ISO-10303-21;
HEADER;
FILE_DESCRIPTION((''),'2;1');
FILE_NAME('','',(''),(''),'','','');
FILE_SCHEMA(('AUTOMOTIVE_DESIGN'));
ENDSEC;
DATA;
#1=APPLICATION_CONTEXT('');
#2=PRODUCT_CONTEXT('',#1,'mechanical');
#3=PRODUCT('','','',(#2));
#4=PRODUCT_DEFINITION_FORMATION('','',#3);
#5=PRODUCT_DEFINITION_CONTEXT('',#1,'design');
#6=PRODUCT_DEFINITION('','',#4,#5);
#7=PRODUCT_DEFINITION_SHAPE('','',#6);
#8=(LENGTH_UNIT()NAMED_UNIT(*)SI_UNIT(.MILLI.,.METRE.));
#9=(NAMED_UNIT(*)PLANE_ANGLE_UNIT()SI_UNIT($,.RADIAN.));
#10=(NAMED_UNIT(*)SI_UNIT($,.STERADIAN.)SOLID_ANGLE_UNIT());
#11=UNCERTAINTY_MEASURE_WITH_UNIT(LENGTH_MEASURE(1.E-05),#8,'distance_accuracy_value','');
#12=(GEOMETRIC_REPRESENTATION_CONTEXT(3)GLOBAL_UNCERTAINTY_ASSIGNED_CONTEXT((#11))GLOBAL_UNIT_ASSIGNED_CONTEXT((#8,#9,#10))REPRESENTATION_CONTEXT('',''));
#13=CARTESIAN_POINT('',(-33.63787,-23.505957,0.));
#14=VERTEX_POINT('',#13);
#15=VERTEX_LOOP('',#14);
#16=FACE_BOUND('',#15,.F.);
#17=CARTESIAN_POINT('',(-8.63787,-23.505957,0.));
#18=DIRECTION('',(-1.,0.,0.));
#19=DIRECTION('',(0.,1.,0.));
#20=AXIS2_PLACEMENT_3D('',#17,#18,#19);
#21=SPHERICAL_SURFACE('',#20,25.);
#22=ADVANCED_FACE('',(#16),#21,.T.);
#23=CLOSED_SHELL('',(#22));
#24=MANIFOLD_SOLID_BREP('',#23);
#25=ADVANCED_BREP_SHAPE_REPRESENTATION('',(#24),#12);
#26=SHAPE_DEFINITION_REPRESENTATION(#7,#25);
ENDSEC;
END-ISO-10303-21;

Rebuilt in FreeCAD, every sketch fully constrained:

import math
import FreeCAD as App
import Part
import Sketcher
from FreeCAD import Vector
Q = App.Units.Quantity

doc = App.newDocument("Part")
body = doc.addObject("PartDesign::Body", "Body")

sketch1 = body.newObject("Sketcher::SketchObject", "Sketch")
sketch1.AttachmentSupport = (doc.getObject("XY_Plane"), [""])
sketch1.MapMode = "FlatFace"
sketch1.addGeometry(Part.LineSegment(Vector(-33.63787, -23.505957, 0), Vector(16.36213, -23.505957, 0)), False)
sketch1.addGeometry(Part.ArcOfCircle(Part.Circle(Vector(-8.63787, -23.505957, 0), Vector(0, 0, 1), 25), math.radians(0), math.radians(180)), False)
sketch1.addGeometry(Part.LineSegment(Vector(-33.63787, -23.505957, 0), Vector(16.36213, -23.505957, 0)), True)
sketch1.addConstraint(Sketcher.Constraint("Coincident", 0, 1, 1, 2))
sketch1.addConstraint(Sketcher.Constraint("Coincident", 1, 1, 0, 2))
sketch1.addConstraint(Sketcher.Constraint("Horizontal", 0))
sketch1.addConstraint(Sketcher.Constraint("Horizontal", 2))
sketch1.addConstraint(Sketcher.Constraint("Coincident", 2, 1, 0, 1))
sketch1.addConstraint(Sketcher.Constraint("Horizontal", 1, 3, 0, 1))
sketch1.addConstraint(Sketcher.Constraint("Equal", 0, 2))
sketch1.addConstraint(Sketcher.Constraint("Radius", 1, Q("25 mm")))
sketch1.addConstraint(Sketcher.Constraint("DistanceX", 1, 3, -1, 1, Q("8.63787 mm")))
sketch1.addConstraint(Sketcher.Constraint("DistanceY", 1, 3, -1, 1, Q("23.505957 mm")))
revolution = body.newObject("PartDesign::Revolution", "Revolution")
revolution.Profile = sketch1
revolution.ReferenceAxis = (sketch1, ["Axis0"])
revolution.Angle = 360

doc.recompute()
